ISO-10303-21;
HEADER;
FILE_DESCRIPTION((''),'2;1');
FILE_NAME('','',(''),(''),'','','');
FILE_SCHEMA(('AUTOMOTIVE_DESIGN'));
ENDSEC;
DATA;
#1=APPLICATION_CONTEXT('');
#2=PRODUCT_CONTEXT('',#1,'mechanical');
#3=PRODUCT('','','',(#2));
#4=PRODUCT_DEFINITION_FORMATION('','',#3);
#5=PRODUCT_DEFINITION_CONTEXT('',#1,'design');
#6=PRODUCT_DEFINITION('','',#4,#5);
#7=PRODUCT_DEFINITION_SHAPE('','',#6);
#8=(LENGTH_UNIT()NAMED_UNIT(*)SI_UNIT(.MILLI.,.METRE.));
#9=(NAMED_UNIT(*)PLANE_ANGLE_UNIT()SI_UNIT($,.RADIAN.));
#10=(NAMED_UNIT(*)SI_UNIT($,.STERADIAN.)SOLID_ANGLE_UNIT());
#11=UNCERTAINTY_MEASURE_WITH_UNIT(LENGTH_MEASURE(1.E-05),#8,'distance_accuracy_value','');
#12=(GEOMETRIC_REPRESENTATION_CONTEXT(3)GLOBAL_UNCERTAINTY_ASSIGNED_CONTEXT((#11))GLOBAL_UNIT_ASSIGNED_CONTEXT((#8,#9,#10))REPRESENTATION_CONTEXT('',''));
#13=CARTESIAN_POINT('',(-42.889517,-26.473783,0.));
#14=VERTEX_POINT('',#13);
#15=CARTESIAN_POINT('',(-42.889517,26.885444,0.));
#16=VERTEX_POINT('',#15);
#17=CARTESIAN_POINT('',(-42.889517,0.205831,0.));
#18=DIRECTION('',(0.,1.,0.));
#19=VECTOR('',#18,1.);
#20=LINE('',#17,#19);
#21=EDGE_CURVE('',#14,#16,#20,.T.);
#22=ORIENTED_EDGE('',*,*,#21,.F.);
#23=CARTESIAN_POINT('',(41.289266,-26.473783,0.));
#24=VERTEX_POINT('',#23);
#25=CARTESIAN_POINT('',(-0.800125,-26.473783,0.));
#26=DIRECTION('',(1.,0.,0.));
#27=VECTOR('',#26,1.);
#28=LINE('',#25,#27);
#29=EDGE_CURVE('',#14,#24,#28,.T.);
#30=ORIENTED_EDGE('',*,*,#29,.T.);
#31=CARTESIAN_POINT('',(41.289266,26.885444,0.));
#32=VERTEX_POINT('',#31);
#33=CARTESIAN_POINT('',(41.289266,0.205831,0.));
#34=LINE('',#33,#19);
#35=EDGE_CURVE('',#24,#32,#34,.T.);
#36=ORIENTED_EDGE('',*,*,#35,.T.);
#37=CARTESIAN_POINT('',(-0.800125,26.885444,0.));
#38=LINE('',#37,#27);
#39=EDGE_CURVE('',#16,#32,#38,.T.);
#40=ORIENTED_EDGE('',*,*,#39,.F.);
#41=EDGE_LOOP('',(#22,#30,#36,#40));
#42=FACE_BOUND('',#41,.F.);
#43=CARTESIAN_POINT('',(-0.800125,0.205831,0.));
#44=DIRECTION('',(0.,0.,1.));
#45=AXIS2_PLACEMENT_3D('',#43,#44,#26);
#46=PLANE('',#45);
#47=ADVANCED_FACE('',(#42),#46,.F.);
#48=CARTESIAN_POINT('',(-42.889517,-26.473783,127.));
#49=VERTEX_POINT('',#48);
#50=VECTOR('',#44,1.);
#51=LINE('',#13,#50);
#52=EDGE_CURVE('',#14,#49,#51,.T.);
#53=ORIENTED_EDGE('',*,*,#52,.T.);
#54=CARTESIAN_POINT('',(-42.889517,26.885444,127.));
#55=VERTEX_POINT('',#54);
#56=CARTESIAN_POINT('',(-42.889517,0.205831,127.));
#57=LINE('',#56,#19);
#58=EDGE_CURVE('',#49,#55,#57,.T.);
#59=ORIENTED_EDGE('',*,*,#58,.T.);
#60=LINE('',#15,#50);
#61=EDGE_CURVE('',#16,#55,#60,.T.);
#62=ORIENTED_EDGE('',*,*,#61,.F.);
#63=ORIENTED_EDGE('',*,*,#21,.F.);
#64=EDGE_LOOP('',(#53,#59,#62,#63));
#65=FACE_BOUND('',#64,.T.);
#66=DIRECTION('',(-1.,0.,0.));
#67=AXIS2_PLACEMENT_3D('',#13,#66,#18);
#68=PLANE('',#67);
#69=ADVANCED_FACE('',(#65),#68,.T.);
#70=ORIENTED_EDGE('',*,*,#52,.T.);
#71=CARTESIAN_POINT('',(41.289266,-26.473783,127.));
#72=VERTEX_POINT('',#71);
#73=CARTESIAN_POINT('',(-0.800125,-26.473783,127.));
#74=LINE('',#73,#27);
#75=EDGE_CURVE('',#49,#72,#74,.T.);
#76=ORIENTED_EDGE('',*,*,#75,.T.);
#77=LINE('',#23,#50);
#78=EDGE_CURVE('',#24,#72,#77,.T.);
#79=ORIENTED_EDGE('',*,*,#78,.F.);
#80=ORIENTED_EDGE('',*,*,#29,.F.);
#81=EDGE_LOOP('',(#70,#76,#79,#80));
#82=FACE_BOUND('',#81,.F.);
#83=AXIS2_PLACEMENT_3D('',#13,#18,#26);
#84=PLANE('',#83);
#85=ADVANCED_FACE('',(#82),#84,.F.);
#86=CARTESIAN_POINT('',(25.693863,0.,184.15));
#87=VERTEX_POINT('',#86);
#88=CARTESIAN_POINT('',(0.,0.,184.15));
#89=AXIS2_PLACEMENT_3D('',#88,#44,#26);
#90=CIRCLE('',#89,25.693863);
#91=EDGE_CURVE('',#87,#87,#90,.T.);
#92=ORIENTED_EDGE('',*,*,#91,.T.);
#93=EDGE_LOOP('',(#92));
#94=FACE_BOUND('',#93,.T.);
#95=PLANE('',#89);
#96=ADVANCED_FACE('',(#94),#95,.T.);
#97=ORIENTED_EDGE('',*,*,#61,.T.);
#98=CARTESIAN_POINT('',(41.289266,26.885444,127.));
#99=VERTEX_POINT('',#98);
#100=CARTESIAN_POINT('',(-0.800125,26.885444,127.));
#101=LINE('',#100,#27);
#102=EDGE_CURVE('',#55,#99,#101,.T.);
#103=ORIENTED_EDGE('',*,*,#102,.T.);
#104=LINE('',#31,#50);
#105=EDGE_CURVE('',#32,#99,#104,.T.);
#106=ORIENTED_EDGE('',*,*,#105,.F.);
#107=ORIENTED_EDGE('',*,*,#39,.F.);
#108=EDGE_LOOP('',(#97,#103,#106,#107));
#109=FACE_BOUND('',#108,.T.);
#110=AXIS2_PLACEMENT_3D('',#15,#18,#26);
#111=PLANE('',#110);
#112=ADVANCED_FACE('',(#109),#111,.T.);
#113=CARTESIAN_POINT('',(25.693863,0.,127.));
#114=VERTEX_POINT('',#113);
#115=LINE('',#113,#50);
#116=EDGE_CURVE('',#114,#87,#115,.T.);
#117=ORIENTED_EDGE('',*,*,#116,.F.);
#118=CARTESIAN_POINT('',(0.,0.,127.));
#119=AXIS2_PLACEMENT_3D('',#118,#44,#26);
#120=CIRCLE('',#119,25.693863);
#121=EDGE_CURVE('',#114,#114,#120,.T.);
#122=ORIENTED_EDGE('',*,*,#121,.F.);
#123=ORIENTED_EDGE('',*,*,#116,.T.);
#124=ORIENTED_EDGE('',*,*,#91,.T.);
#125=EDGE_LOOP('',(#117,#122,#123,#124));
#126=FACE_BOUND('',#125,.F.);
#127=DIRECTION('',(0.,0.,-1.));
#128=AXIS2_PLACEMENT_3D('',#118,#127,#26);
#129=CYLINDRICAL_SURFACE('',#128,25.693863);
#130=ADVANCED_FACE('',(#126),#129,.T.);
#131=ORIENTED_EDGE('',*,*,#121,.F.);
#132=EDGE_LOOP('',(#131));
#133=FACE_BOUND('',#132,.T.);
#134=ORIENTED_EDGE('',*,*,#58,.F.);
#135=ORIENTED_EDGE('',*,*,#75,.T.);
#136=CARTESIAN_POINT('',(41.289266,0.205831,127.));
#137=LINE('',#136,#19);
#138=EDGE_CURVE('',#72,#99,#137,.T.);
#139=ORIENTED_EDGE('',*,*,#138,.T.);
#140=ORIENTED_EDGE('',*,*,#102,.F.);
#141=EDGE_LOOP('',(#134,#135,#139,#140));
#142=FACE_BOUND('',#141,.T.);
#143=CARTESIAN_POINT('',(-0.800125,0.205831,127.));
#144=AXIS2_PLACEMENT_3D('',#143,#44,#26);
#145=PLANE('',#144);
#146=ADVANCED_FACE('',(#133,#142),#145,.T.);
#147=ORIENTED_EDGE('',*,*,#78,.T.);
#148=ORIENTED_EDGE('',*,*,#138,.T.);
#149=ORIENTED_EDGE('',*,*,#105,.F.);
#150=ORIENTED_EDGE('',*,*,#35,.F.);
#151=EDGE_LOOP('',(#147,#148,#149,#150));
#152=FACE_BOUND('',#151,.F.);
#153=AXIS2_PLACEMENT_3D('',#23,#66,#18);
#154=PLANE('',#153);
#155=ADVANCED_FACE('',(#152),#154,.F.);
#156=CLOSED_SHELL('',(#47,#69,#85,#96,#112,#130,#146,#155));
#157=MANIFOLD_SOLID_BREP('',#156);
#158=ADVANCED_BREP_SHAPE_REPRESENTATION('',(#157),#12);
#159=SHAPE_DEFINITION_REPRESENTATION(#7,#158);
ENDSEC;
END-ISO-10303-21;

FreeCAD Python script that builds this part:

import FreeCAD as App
import Part
import Sketcher
Q = App.Units.Quantity


def add_polygon(sketch, points):
    """Adds a closed chain of lines whose ends are joined by coincident constraints."""
    first, n = sketch.GeometryCount, len(points)
    for a, b in zip(points, points[1:] + points[:1]):
        sketch.addGeometry(Part.LineSegment(App.Vector(*a, 0), App.Vector(*b, 0)), False)
    for i in range(n):
        sketch.addConstraint(Sketcher.Constraint("Coincident", first + i, 2, first + (i + 1) % n, 1))

doc = App.newDocument("Part")
body = doc.addObject("PartDesign::Body", "Body")

# Sketch on XY plane
sketch1 = body.newObject("Sketcher::SketchObject", "Sketch")
sketch1.AttachmentSupport = (doc.getObject("XY_Plane"), [""])
sketch1.MapMode = "FlatFace"
sketch1.addGeometry(Part.Circle(App.Vector(0, 0, 0), App.Vector(0, 0, 1), 29.873898), False)
sketch1.addConstraint([
    Sketcher.Constraint("Coincident", 0, 3, -1, 1),
    Sketcher.Constraint("Diameter", 0, 59.747797),
])
pad1 = body.newObject("PartDesign::Pad", "Pad")
pad1.Profile = sketch1
pad1.Length = Q("4 in")
body2 = doc.addObject("PartDesign::Body", "Body001")

# Sketch on XY plane
sketch2 = body2.newObject("Sketcher::SketchObject", "Sketch001")
sketch2.AttachmentSupport = (doc.getObject("XY_Plane001"), [""])
sketch2.MapMode = "FlatFace"
add_polygon(sketch2, [(-42.889517, 26.885444), (-42.889517, -26.473783), (41.289266, -26.473783), (41.289266, 26.885444)])  # lines 0-3
sketch2.addConstraint([
    Sketcher.Constraint("Vertical", 0),
    Sketcher.Constraint("Horizontal", 1),
    Sketcher.Constraint("Vertical", 2),
    Sketcher.Constraint("Horizontal", 3),
    Sketcher.Constraint("DistanceX", 1, 1, 1, 2, 84.178783),
    Sketcher.Constraint("DistanceY", 0, 2, 0, 1, 53.359227),
    Sketcher.Constraint("DistanceX", 0, 2, -1, 1, 42.889517),
    Sketcher.Constraint("DistanceY", 0, 2, -1, 1, 26.473783),
])
pad2 = body2.newObject("PartDesign::Pad", "Pad001")
pad2.Profile = sketch2
pad2.Length = Q("5 in")

# Sketch on XY plane
sketch3 = body2.newObject("Sketcher::SketchObject", "Sketch002")
sketch3.AttachmentSupport = (doc.getObject("XY_Plane001"), [""])
sketch3.MapMode = "FlatFace"
sketch3.AttachmentOffset = App.Placement(App.Vector(0, 0, 5 * 25.4), App.Rotation())
sketch3.addGeometry(Part.Circle(App.Vector(0, 0, 0), App.Vector(0, 0, 1), 25.693863), False)
sketch3.addConstraint([
    Sketcher.Constraint("Coincident", 0, 3, -1, 1),
    Sketcher.Constraint("Diameter", 0, 51.387725),
])
pad3 = body2.newObject("PartDesign::Pad", "Pad002")
pad3.Profile = sketch3
pad3.Length = Q("2.25 in")
body.Visibility = False

doc.recompute()
